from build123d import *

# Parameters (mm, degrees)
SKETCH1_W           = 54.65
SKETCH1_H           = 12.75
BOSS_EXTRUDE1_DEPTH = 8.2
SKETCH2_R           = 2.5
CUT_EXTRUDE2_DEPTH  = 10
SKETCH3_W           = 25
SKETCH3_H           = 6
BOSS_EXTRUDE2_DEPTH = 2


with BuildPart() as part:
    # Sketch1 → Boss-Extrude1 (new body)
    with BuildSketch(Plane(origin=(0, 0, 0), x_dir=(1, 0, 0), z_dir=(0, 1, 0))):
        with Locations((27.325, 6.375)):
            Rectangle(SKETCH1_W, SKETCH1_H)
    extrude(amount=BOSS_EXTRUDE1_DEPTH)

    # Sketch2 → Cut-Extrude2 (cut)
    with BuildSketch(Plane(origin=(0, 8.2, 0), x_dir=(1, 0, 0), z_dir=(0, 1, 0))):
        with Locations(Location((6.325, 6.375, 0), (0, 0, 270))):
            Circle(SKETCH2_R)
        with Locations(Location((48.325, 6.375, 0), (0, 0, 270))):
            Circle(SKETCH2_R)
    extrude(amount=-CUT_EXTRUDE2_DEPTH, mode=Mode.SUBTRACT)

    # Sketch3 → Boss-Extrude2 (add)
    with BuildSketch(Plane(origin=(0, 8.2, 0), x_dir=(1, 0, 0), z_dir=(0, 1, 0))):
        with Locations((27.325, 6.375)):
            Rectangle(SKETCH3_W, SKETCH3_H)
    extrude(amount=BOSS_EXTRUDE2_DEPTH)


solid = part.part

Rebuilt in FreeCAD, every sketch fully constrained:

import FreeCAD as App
import Part
import Sketcher

V = App.Vector
Q = App.Units.Quantity


def add_polygon(sketch, points):
    """Adds a closed chain of lines whose ends are joined by coincident constraints."""
    first, n = sketch.GeometryCount, len(points)
    for a, b in zip(points, points[1:] + points[:1]):
        sketch.addGeometry(Part.LineSegment(App.Vector(*a, 0), App.Vector(*b, 0)), False)
    for i in range(n):
        sketch.addConstraint(Sketcher.Constraint("Coincident", first + i, 2, first + (i + 1) % n, 1))

doc = App.newDocument("Part")
body = doc.addObject("PartDesign::Body", "Body")

sketch1 = body.newObject("Sketcher::SketchObject", "Sketch")
sketch1.AttachmentSupport = (doc.getObject("XZ_Plane"), [""])
sketch1.MapMode = "FlatFace"
add_polygon(sketch1, [(0, -12.75), (0, 0), (54.65, 0), (54.65, -12.75)])
sketch1.addConstraint([
    Sketcher.Constraint("Vertical", 0),
    Sketcher.Constraint("Horizontal", 1),
    Sketcher.Constraint("Vertical", 2),
    Sketcher.Constraint("Horizontal", 3),
    Sketcher.Constraint("Coincident", 0, 2, -1, 1),
    Sketcher.Constraint("DistanceX", 1, 1, 1, 2, Q("54.65 mm")),
    Sketcher.Constraint("DistanceY", 0, 1, 0, 2, Q("12.75 mm")),
])
pad1 = body.newObject("PartDesign::Pad", "Pad")
pad1.Profile = sketch1
pad1.Length = 8.2
pad1.Reversed = True

sketch2 = body.newObject("Sketcher::SketchObject", "Sketch001")
sketch2.AttachmentSupport = (doc.getObject("XZ_Plane"), [""])
sketch2.MapMode = "FlatFace"
sketch2.AttachmentOffset = App.Placement(V(0, 0, -8.2), App.Rotation())
sketch2.addGeometry([
    Part.Circle(V(6.325, -6.375, 0), V(0, 0, 1), 2.5),
    Part.Circle(V(48.325, -6.375, 0), V(0, 0, 1), 2.5),
], False)
sketch2.addConstraint([
    Sketcher.Constraint("Equal", 0, 1),
    Sketcher.Constraint("Horizontal", 0, 3, 1, 3),
    Sketcher.Constraint("Diameter", 0, Q("5 mm")),
    Sketcher.Constraint("DistanceX", 0, 3, 1, 3, Q("42 mm")),
    Sketcher.Constraint("DistanceX", -1, 1, 0, 3, Q("6.325 mm")),
    Sketcher.Constraint("DistanceY", 0, 3, -1, 1, Q("6.375 mm")),
])
pocket1 = body.newObject("PartDesign::Pocket", "Pocket")
pocket1.Profile = sketch2
pocket1.Length = 10
pocket1.Reversed = True

sketch3 = body.newObject("Sketcher::SketchObject", "Sketch002")
sketch3.AttachmentSupport = (doc.getObject("XZ_Plane"), [""])
sketch3.MapMode = "FlatFace"
sketch3.AttachmentOffset = App.Placement(V(0, 0, -8.2), App.Rotation())
add_polygon(sketch3, [(14.825, -9.375), (14.825, -3.375), (39.825, -3.375), (39.825, -9.375)])
sketch3.addConstraint([
    Sketcher.Constraint("Vertical", 0),
    Sketcher.Constraint("Horizontal", 1),
    Sketcher.Constraint("Vertical", 2),
    Sketcher.Constraint("Horizontal", 3),
    Sketcher.Constraint("DistanceX", 1, 1, 1, 2, Q("25 mm")),
    Sketcher.Constraint("DistanceY", 0, 1, 0, 2, Q("6 mm")),
    Sketcher.Constraint("DistanceX", -1, 1, 0, 2, Q("14.825 mm")),
    Sketcher.Constraint("DistanceY", 0, 2, -1, 1, Q("3.375 mm")),
])
pad2 = body.newObject("PartDesign::Pad", "Pad001")
pad2.Profile = sketch3
pad2.Length = 2
pad2.Reversed = True

doc.recompute()
